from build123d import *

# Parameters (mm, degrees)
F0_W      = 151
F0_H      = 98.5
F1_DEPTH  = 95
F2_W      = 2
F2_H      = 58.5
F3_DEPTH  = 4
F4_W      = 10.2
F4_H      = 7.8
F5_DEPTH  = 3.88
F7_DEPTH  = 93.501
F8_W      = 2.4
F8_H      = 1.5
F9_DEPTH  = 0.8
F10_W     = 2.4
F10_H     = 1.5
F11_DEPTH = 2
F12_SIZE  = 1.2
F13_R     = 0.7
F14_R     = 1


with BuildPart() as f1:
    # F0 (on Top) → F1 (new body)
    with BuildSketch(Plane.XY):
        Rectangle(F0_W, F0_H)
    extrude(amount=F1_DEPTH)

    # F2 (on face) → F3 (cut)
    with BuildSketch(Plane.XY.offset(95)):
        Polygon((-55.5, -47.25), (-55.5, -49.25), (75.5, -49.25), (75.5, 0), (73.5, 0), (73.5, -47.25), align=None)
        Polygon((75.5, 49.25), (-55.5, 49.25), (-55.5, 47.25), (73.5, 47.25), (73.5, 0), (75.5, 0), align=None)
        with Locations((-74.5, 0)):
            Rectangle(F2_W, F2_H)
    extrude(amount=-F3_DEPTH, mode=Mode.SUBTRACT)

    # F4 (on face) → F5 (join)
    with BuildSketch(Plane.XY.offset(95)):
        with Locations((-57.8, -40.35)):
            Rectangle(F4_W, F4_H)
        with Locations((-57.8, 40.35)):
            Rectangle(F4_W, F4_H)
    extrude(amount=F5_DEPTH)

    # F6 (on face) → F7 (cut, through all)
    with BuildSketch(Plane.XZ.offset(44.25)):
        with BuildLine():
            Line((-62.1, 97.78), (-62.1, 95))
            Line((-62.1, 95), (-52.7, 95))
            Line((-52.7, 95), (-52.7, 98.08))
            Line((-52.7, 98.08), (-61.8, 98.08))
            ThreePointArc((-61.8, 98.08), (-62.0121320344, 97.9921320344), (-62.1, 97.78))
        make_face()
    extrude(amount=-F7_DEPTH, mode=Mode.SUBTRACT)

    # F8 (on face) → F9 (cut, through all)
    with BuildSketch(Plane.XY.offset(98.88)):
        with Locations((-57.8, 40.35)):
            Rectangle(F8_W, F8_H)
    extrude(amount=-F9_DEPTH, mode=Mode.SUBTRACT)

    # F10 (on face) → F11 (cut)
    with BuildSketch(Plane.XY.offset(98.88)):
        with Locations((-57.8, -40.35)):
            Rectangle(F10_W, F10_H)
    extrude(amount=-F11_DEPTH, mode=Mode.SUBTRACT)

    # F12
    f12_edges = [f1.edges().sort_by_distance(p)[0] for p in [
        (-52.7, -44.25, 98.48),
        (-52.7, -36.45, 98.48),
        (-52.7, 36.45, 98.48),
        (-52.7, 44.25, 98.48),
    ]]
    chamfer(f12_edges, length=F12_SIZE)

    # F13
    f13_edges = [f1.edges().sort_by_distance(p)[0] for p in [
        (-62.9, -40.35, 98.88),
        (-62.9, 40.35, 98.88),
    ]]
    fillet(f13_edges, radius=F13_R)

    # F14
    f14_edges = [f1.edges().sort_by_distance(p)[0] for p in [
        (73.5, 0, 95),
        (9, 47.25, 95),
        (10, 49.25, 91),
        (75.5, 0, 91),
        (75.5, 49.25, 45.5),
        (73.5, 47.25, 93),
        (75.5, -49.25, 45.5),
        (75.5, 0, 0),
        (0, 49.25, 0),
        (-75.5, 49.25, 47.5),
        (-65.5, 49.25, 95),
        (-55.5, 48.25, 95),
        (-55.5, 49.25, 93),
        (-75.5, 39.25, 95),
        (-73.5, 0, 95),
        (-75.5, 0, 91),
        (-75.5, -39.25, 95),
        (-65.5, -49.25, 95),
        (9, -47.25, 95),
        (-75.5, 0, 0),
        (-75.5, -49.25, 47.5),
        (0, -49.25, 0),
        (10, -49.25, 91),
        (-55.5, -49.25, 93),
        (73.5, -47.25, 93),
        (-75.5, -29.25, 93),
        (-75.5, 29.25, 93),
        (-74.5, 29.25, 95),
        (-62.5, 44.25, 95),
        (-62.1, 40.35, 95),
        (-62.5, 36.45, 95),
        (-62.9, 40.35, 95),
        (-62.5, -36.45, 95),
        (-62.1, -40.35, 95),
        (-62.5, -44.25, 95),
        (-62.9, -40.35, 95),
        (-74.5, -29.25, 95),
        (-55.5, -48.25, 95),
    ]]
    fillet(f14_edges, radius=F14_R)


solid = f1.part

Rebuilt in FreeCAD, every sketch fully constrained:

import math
import FreeCAD as App
import Part
import Sketcher

V = App.Vector


def edges_at(feature, points):
    """Names of the edges that pass closest to the given points."""
    edges = feature.Shape.Edges
    near = lambda p: min(range(len(edges)), key=lambda i: edges[i].distToShape(Part.Vertex(*p))[0])
    return sorted({f"Edge{near(p) + 1}" for p in points})

doc = App.newDocument("Part")
params = doc.addObject("Spreadsheet::Sheet", "Params")
for row, (alias, value) in enumerate([
    ("sketch1_width", "151 mm"),
    ("sketch1_height", "98.5 mm"),
    ("pad1_length", "95 mm"),
    ("sketch2_width", "131 mm"),
    ("sketch2_width2", "129 mm"),
    ("sketch2_width3", "2 mm"),
    ("sketch2_height", "98.5 mm"),
    ("sketch2_height2", "58.5 mm"),
    ("pocket1_length", "4 mm"),
    ("sketch3_width", "10.2 mm"),
    ("sketch3_height", "7.8 mm"),
    ("pad2_length", "3.88 mm"),
    ("sketch4_radius", "0.3 mm"),
    ("sketch4_width", "9.4 mm"),
    ("sketch4_height", "2.78 mm"),
    ("sketch5_width", "2.4 mm"),
    ("sketch5_height", "1.5 mm"),
    ("pocket3_length", "0.8 mm"),
    ("sketch6_width", "2.4 mm"),
    ("sketch6_height", "1.5 mm"),
    ("pocket4_length", "2 mm"),
    ("chamfer_size", "1.2 mm"),
    ("fillet_radius", "0.7 mm"),
    ("fillet2_radius", "1 mm"),
], start=1):
    params.set(f"A{row}", alias)
    params.set(f"B{row}", "=" + value)
    params.setAlias(f"B{row}", alias)

body = doc.addObject("PartDesign::Body", "Body")

sketch1 = body.newObject("Sketcher::SketchObject", "Sketch")
sketch1.AttachmentSupport = (doc.getObject("XY_Plane"), [""])
sketch1.MapMode = "FlatFace"
sketch1.addGeometry([
    Part.LineSegment(V(-76, 49, 0), V(-76, -49, 0)),
    Part.LineSegment(V(-76, -49, 0), V(76, -49, 0)),
    Part.LineSegment(V(76, -49, 0), V(76, 49, 0)),
    Part.LineSegment(V(76, 49, 0), V(-76, 49, 0)),
], False)
sketch1.addConstraint([
    Sketcher.Constraint("Coincident", 0, 2, 1, 1),
    Sketcher.Constraint("Coincident", 1, 2, 2, 1),
    Sketcher.Constraint("Coincident", 2, 2, 3, 1),
    Sketcher.Constraint("Coincident", 3, 2, 0, 1),
    Sketcher.Constraint("Vertical", 0),
    Sketcher.Constraint("Horizontal", 1),
    Sketcher.Constraint("Vertical", 2),
    Sketcher.Constraint("Horizontal", 3),
    Sketcher.Constraint("Symmetric", 0, 2, 2, 2, -1, 1),
    Sketcher.Constraint("DistanceX", 1, 1, 1, 2, 151.0),
    Sketcher.Constraint("DistanceY", 0, 2, 0, 1, 98.5),
])
sketch1.setExpression("Constraints[9]", "Params.sketch1_width")
sketch1.setExpression("Constraints[10]", "Params.sketch1_height")
pad1 = body.newObject("PartDesign::Pad", "Pad")
pad1.Profile = sketch1
pad1.setExpression("Length", "Params.pad1_length")

sketch2 = body.newObject("Sketcher::SketchObject", "Sketch001")
sketch2.AttachmentSupport = (doc.getObject("XY_Plane"), [""])
sketch2.MapMode = "FlatFace"
sketch2.AttachmentOffset = App.Placement(V(0, 0, 95), App.Rotation())
sketch2.addGeometry([
    Part.LineSegment(V(-55.5, -47.2, 0), V(-55.5, -49.2, 0)),
    Part.LineSegment(V(-55.5, -49.2, 0), V(75.5, -49.2, 0)),
    Part.LineSegment(V(75.5, -49.2, 0), V(75.5, 49.2, 0)),
    Part.LineSegment(V(75.5, 49.2, 0), V(-55.5, 49.2, 0)),
    Part.LineSegment(V(-55.5, 49.2, 0), V(-55.5, 47.2, 0)),
    Part.LineSegment(V(-55.5, 47.2, 0), V(73.5, 47.2, 0)),
    Part.LineSegment(V(73.5, 47.2, 0), V(73.5, -47.2, 0)),
    Part.LineSegment(V(73.5, -47.2, 0), V(-55.5, -47.2, 0)),
    Part.LineSegment(V(-75.5, 29.2, 0), V(-75.5, -29.2, 0)),
    Part.LineSegment(V(-75.5, -29.2, 0), V(-73.5, -29.2, 0)),
    Part.LineSegment(V(-73.5, -29.2, 0), V(-73.5, 29.2, 0)),
    Part.LineSegment(V(-73.5, 29.2, 0), V(-75.5, 29.2, 0)),
], False)
sketch2.addConstraint([
    Sketcher.Constraint("Coincident", 0, 2, 1, 1),
    Sketcher.Constraint("Coincident", 1, 2, 2, 1),
    Sketcher.Constraint("Coincident", 2, 2, 3, 1),
    Sketcher.Constraint("Coincident", 3, 2, 4, 1),
    Sketcher.Constraint("Coincident", 4, 2, 5, 1),
    Sketcher.Constraint("Coincident", 5, 2, 6, 1),
    Sketcher.Constraint("Coincident", 6, 2, 7, 1),
    Sketcher.Constraint("Coincident", 7, 2, 0, 1),
    Sketcher.Constraint("Coincident", 8, 2, 9, 1),
    Sketcher.Constraint("Coincident", 9, 2, 10, 1),
    Sketcher.Constraint("Coincident", 10, 2, 11, 1),
    Sketcher.Constraint("Coincident", 11, 2, 8, 1),
    Sketcher.Constraint("Vertical", 0),
    Sketcher.Constraint("Horizontal", 1),
    Sketcher.Constraint("Vertical", 2),
    Sketcher.Constraint("Horizontal", 3),
    Sketcher.Constraint("Vertical", 4),
    Sketcher.Constraint("Horizontal", 5),
    Sketcher.Constraint("Vertical", 6),
    Sketcher.Constraint("Horizontal", 7),
    Sketcher.Constraint("Vertical", 8),
    Sketcher.Constraint("Horizontal", 9),
    Sketcher.Constraint("Vertical", 10),
    Sketcher.Constraint("Horizontal", 11),
    Sketcher.Constraint("Symmetric", 0, 2, 3, 2, -1),
    Sketcher.Constraint("Equal", 11, 0),
    Sketcher.Constraint("Equal", 0, 4),
    Sketcher.Constraint("DistanceX", 1, 1, 1, 2, 131.0),
    Sketcher.Constraint("DistanceX", 5, 1, 5, 2, 129.0),
    Sketcher.Constraint("DistanceX", 9, 1, 9, 2, 2.0),
    Sketcher.Constraint("DistanceY", 2, 1, 2, 2, 98.5),
    Sketcher.Constraint("DistanceY", 8, 2, 8, 1, 58.5),
    Sketcher.Constraint("DistanceX", 8, 2, 7, 2, 20.0),
    Sketcher.Constraint("DistanceY", 7, 2, 8, 2, 18.0),
    Sketcher.Constraint("DistanceX", 0, 2, -1, 1, 55.5),
])
sketch2.setExpression("Constraints[27]", "Params.sketch2_width")
sketch2.setExpression("Constraints[28]", "Params.sketch2_width2")
sketch2.setExpression("Constraints[29]", "Params.sketch2_width3")
sketch2.setExpression("Constraints[30]", "Params.sketch2_height")
sketch2.setExpression("Constraints[31]", "Params.sketch2_height2")
pocket1 = body.newObject("PartDesign::Pocket", "Pocket")
pocket1.Profile = sketch2
pocket1.setExpression("Length", "Params.pocket1_length")

sketch3 = body.newObject("Sketcher::SketchObject", "Sketch002")
sketch3.AttachmentSupport = (doc.getObject("XY_Plane"), [""])
sketch3.MapMode = "FlatFace"
sketch3.AttachmentOffset = App.Placement(V(0, 0, 95), App.Rotation())
sketch3.addGeometry([
    Part.LineSegment(V(-63, -36, 0), V(-63, -44, 0)),
    Part.LineSegment(V(-63, -44, 0), V(-53, -44, 0)),
    Part.LineSegment(V(-53, -44, 0), V(-53, -36, 0)),
    Part.LineSegment(V(-53, -36, 0), V(-63, -36, 0)),
    Part.LineSegment(V(-63, 44, 0), V(-63, 36, 0)),
    Part.LineSegment(V(-63, 36, 0), V(-53, 36, 0)),
    Part.LineSegment(V(-53, 36, 0), V(-53, 44, 0)),
    Part.LineSegment(V(-53, 44, 0), V(-63, 44, 0)),
], False)
sketch3.addConstraint([
    Sketcher.Constraint("Coincident", 0, 2, 1, 1),
    Sketcher.Constraint("Coincident", 1, 2, 2, 1),
    Sketcher.Constraint("Coincident", 2, 2, 3, 1),
    Sketcher.Constraint("Coincident", 3, 2, 0, 1),
    Sketcher.Constraint("Coincident", 4, 2, 5, 1),
    Sketcher.Constraint("Coincident", 5, 2, 6, 1),
    Sketcher.Constraint("Coincident", 6, 2, 7, 1),
    Sketcher.Constraint("Coincident", 7, 2, 4, 1),
    Sketcher.Constraint("Vertical", 0),
    Sketcher.Constraint("Horizontal", 1),
    Sketcher.Constraint("Vertical", 2),
    Sketcher.Constraint("Horizontal", 3),
    Sketcher.Constraint("Vertical", 4),
    Sketcher.Constraint("Horizontal", 5),
    Sketcher.Constraint("Vertical", 6),
    Sketcher.Constraint("Horizontal", 7),
    Sketcher.Constraint("Symmetric", 3, 2, 4, 2, -1),
    Sketcher.Constraint("Symmetric", 1, 2, 6, 2, -1),
    Sketcher.Constraint("DistanceX", 1, 1, 1, 2, 10.2),
    Sketcher.Constraint("DistanceY", 0, 2, 0, 1, 7.8),
    Sketcher.Constraint("DistanceX", 0, 2, -1, 1, 62.9),
    Sketcher.Constraint("DistanceY", 3, 2, 4, 2, 72.9),
])
sketch3.setExpression("Constraints[18]", "Params.sketch3_width")
sketch3.setExpression("Constraints[19]", "Params.sketch3_height")
pad2 = body.newObject("PartDesign::Pad", "Pad001")
pad2.Profile = sketch3
pad2.setExpression("Length", "Params.pad2_length")

sketch4 = body.newObject("Sketcher::SketchObject", "Sketch003")
sketch4.AttachmentSupport = (doc.getObject("XZ_Plane"), [""])
sketch4.MapMode = "FlatFace"
sketch4.AttachmentOffset = App.Placement(V(0, 0, 44.25), App.Rotation())
sketch4.addGeometry([
    Part.LineSegment(V(-62.1, 97.78, 0), V(-62.1, 95, 0)),
    Part.LineSegment(V(-62.1, 95, 0), V(-52.7, 95, 0)),
    Part.LineSegment(V(-52.7, 95, 0), V(-52.7, 98.08, 0)),
    Part.LineSegment(V(-52.7, 98.08, 0), V(-61.8, 98.08, 0)),
    Part.ArcOfCircle(Part.Circle(V(-61.8, 97.78, 0), V(0, 0, 1), 0.3), math.radians(90), math.radians(180)),
], False)
sketch4.addConstraint([
    Sketcher.Constraint("Coincident", 0, 2, 1, 1),
    Sketcher.Constraint("Coincident", 1, 2, 2, 1),
    Sketcher.Constraint("Coincident", 2, 2, 3, 1),
    Sketcher.Constraint("Tangent", 3, 2, 4, 1),
    Sketcher.Constraint("Tangent", 4, 2, 0, 1),
    Sketcher.Constraint("Vertical", 0),
    Sketcher.Constraint("Horizontal", 1),
    Sketcher.Constraint("Vertical", 2),
    Sketcher.Constraint("Horizontal", 3),
    Sketcher.Constraint("Radius", 4, 0.3),
    Sketcher.Constraint("DistanceX", 1, 1, 1, 2, 9.4),
    Sketcher.Constraint("DistanceY", -1, 1, 0, 2, 95.0),
    Sketcher.Constraint("DistanceY", 0, 2, 0, 1, 2.78),
    Sketcher.Constraint("DistanceX", 4, 3, -1, 1, 61.8),
])
sketch4.setExpression("Constraints[9]", "Params.sketch4_radius")
sketch4.setExpression("Constraints[10]", "Params.sketch4_width")
sketch4.setExpression("Constraints[12]", "Params.sketch4_height")
pocket2 = body.newObject("PartDesign::Pocket", "Pocket001")
pocket2.Profile = sketch4
pocket2.Type = "ThroughAll"

sketch5 = body.newObject("Sketcher::SketchObject", "Sketch004")
sketch5.AttachmentSupport = (doc.getObject("XY_Plane"), [""])
sketch5.MapMode = "FlatFace"
sketch5.AttachmentOffset = App.Placement(V(0, 0, 98.88), App.Rotation())
sketch5.addGeometry([
    Part.LineSegment(V(-59, 41.1, 0), V(-59, 39.6, 0)),
    Part.LineSegment(V(-59, 39.6, 0), V(-56.6, 39.6, 0)),
    Part.LineSegment(V(-56.6, 39.6, 0), V(-56.6, 41.1, 0)),
    Part.LineSegment(V(-56.6, 41.1, 0), V(-59, 41.1, 0)),
], False)
sketch5.addConstraint([
    Sketcher.Constraint("Coincident", 0, 2, 1, 1),
    Sketcher.Constraint("Coincident", 1, 2, 2, 1),
    Sketcher.Constraint("Coincident", 2, 2, 3, 1),
    Sketcher.Constraint("Coincident", 3, 2, 0, 1),
    Sketcher.Constraint("Vertical", 0),
    Sketcher.Constraint("Horizontal", 1),
    Sketcher.Constraint("Vertical", 2),
    Sketcher.Constraint("Horizontal", 3),
    Sketcher.Constraint("DistanceX", 1, 1, 1, 2, 2.4),
    Sketcher.Constraint("DistanceY", 0, 2, 0, 1, 1.5),
    Sketcher.Constraint("DistanceX", 0, 2, -1, 1, 59.0),
    Sketcher.Constraint("DistanceY", -1, 1, 0, 2, 39.6),
])
sketch5.setExpression("Constraints[8]", "Params.sketch5_width")
sketch5.setExpression("Constraints[9]", "Params.sketch5_height")
pocket3 = body.newObject("PartDesign::Pocket", "Pocket002")
pocket3.Profile = sketch5
pocket3.setExpression("Length", "Params.pocket3_length")

sketch6 = body.newObject("Sketcher::SketchObject", "Sketch005")
sketch6.AttachmentSupport = (doc.getObject("XY_Plane"), [""])
sketch6.MapMode = "FlatFace"
sketch6.AttachmentOffset = App.Placement(V(0, 0, 98.88), App.Rotation())
sketch6.addGeometry([
    Part.LineSegment(V(-59, -39.6, 0), V(-59, -41.1, 0)),
    Part.LineSegment(V(-59, -41.1, 0), V(-56.6, -41.1, 0)),
    Part.LineSegment(V(-56.6, -41.1, 0), V(-56.6, -39.6, 0)),
    Part.LineSegment(V(-56.6, -39.6, 0), V(-59, -39.6, 0)),
], False)
sketch6.addConstraint([
    Sketcher.Constraint("Coincident", 0, 2, 1, 1),
    Sketcher.Constraint("Coincident", 1, 2, 2, 1),
    Sketcher.Constraint("Coincident", 2, 2, 3, 1),
    Sketcher.Constraint("Coincident", 3, 2, 0, 1),
    Sketcher.Constraint("Vertical", 0),
    Sketcher.Constraint("Horizontal", 1),
    Sketcher.Constraint("Vertical", 2),
    Sketcher.Constraint("Horizontal", 3),
    Sketcher.Constraint("DistanceX", 1, 1, 1, 2, 2.4),
    Sketcher.Constraint("DistanceY", 0, 2, 0, 1, 1.5),
    Sketcher.Constraint("DistanceX", 0, 2, -1, 1, 59.0),
    Sketcher.Constraint("DistanceY", 0, 2, -1, 1, 41.1),
])
sketch6.setExpression("Constraints[8]", "Params.sketch6_width")
sketch6.setExpression("Constraints[9]", "Params.sketch6_height")
pocket4 = body.newObject("PartDesign::Pocket", "Pocket003")
pocket4.Profile = sketch6
pocket4.setExpression("Length", "Params.pocket4_length")
doc.recompute()

chamfer = body.newObject("PartDesign::Chamfer", "Chamfer")
chamfer.Base = (pocket4, edges_at(pocket4, [
    (-52.7, -44.25, 98.48),
    (-52.7, -36.45, 98.48),
    (-52.7, 36.45, 98.48),
    (-52.7, 44.25, 98.48),
]))
chamfer.setExpression("Size", "Params.chamfer_size")
doc.recompute()

fillet = body.newObject("PartDesign::Fillet", "Fillet")
fillet.Base = (chamfer, edges_at(chamfer, [(-62.9, -40.35, 98.88), (-62.9, 40.35, 98.88)]))
fillet.setExpression("Radius", "Params.fillet_radius")
doc.recompute()

fillet2 = body.newObject("PartDesign::Fillet", "Fillet001")
fillet2.Base = (fillet, edges_at(fillet, [
    (73.5, 0, 95),
    (9, 47.25, 95),
    (10, 49.25, 91),
    (75.5, 0, 91),
    (75.5, 49.25, 45.5),
    (73.5, 47.25, 93),
    (75.5, -49.25, 45.5),
    (75.5, 0, 0),
    (0, 49.25, 0),
    (-75.5, 49.25, 47.5),
    (-65.5, 49.25, 95),
    (-55.5, 48.25, 95),
    (-55.5, 49.25, 93),
    (-75.5, 39.25, 95),
    (-73.5, 0, 95),
    (-75.5, 0, 91),
    (-75.5, -39.25, 95),
    (-65.5, -49.25, 95),
    (9, -47.25, 95),
    (-75.5, 0, 0),
    (-75.5, -49.25, 47.5),
    (0, -49.25, 0),
    (10, -49.25, 91),
    (-55.5, -49.25, 93),
    (73.5, -47.25, 93),
    (-75.5, -29.25, 93),
    (-75.5, 29.25, 93),
    (-74.5, 29.25, 95),
    (-62.5, 44.25, 95),
    (-62.1, 40.35, 95),
    (-62.5, 36.45, 95),
    (-62.9, 40.35, 95),
    (-62.5, -36.45, 95),
    (-62.1, -40.35, 95),
    (-62.5, -44.25, 95),
    (-62.9, -40.35, 95),
    (-74.5, -29.25, 95),
    (-55.5, -48.25, 95),
]))
fillet2.setExpression("Radius", "Params.fillet2_radius")

doc.recompute()
